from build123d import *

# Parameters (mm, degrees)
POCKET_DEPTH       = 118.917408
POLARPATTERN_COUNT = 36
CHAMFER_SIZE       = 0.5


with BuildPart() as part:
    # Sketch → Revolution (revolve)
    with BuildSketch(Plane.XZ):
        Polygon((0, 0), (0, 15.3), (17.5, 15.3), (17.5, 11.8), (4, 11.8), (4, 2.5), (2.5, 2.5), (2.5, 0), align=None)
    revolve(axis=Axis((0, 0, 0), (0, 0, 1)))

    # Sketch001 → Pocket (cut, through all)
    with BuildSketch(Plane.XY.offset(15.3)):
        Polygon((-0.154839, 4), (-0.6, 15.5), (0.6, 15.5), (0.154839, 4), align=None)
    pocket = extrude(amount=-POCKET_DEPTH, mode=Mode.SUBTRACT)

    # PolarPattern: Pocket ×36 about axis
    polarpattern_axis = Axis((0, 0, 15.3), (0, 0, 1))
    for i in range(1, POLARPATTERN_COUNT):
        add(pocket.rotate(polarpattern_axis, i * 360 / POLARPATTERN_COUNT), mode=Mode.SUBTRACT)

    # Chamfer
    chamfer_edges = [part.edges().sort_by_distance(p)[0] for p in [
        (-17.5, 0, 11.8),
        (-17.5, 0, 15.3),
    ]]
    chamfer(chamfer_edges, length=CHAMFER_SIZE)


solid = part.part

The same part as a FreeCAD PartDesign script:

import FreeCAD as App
import Part
import Sketcher


def edges_at(feature, points):
    """Names of the edges that pass closest to the given points."""
    edges = feature.Shape.Edges
    near = lambda p: min(range(len(edges)), key=lambda i: edges[i].distToShape(Part.Vertex(*p))[0])
    return sorted({f"Edge{near(p) + 1}" for p in points})

doc = App.newDocument("Part")
body = doc.addObject("PartDesign::Body", "Body")

sketch1 = body.newObject("Sketcher::SketchObject", "Sketch")
sketch1.AttachmentSupport = (doc.getObject("XZ_Plane"), [""])
sketch1.MapMode = "FlatFace"
sketch1.addGeometry(Part.LineSegment(App.Vector(0, 15.3, 0), App.Vector(0, 0, 0)), False)
sketch1.addGeometry(Part.LineSegment(App.Vector(0, 0, 0), App.Vector(2.5, 0, 0)), False)
sketch1.addGeometry(Part.LineSegment(App.Vector(2.5, 0, 0), App.Vector(2.5, 2.5, 0)), False)
sketch1.addGeometry(Part.LineSegment(App.Vector(2.5, 2.5, 0), App.Vector(4, 2.5, 0)), False)
sketch1.addGeometry(Part.LineSegment(App.Vector(4, 2.5, 0), App.Vector(4, 11.8, 0)), False)
sketch1.addGeometry(Part.LineSegment(App.Vector(4, 11.8, 0), App.Vector(17.5, 11.8, 0)), False)
sketch1.addGeometry(Part.LineSegment(App.Vector(17.5, 11.8, 0), App.Vector(17.5, 15.3, 0)), False)
sketch1.addGeometry(Part.LineSegment(App.Vector(17.5, 15.3, 0), App.Vector(0, 15.3, 0)), False)
sketch1.addConstraint(Sketcher.Constraint("Coincident", 0, 2, 1, 1))
sketch1.addConstraint(Sketcher.Constraint("Coincident", 1, 2, 2, 1))
sketch1.addConstraint(Sketcher.Constraint("Coincident", 2, 2, 3, 1))
sketch1.addConstraint(Sketcher.Constraint("Coincident", 3, 2, 4, 1))
sketch1.addConstraint(Sketcher.Constraint("Coincident", 4, 2, 5, 1))
sketch1.addConstraint(Sketcher.Constraint("Coincident", 5, 2, 6, 1))
sketch1.addConstraint(Sketcher.Constraint("Coincident", 6, 2, 7, 1))
sketch1.addConstraint(Sketcher.Constraint("Coincident", 7, 2, 0, 1))
sketch1.addConstraint(Sketcher.Constraint("Vertical", 0))
sketch1.addConstraint(Sketcher.Constraint("Horizontal", 1))
sketch1.addConstraint(Sketcher.Constraint("Vertical", 2))
sketch1.addConstraint(Sketcher.Constraint("Horizontal", 3))
sketch1.addConstraint(Sketcher.Constraint("Vertical", 4))
sketch1.addConstraint(Sketcher.Constraint("Horizontal", 5))
sketch1.addConstraint(Sketcher.Constraint("Vertical", 6))
sketch1.addConstraint(Sketcher.Constraint("Horizontal", 7))
sketch1.addConstraint(Sketcher.Constraint("Coincident", 0, 2, -1, 1))
sketch1.addConstraint(Sketcher.Constraint("Equal", 1, 2))
sketch1.addConstraint(Sketcher.Constraint("DistanceX", 1, 1, 1, 2, 2.5))
sketch1.addConstraint(Sketcher.Constraint("DistanceX", 3, 1, 3, 2, 1.5))
sketch1.addConstraint(Sketcher.Constraint("DistanceX", 5, 1, 5, 2, 13.5))
sketch1.addConstraint(Sketcher.Constraint("DistanceY", 0, 2, 0, 1, 15.3))
sketch1.addConstraint(Sketcher.Constraint("DistanceY", 4, 1, 4, 2, 9.3))
revolution = body.newObject("PartDesign::Revolution", "Revolution")
revolution.Profile = sketch1
revolution.ReferenceAxis = (sketch1, ["V_Axis"])
revolution.Angle = 360

sketch2 = body.newObject("Sketcher::SketchObject", "Sketch001")
sketch2.AttachmentSupport = (doc.getObject("XY_Plane"), [""])
sketch2.MapMode = "FlatFace"
sketch2.AttachmentOffset = App.Placement(App.Vector(0, 0, 15.3), App.Rotation())
sketch2.addGeometry(Part.LineSegment(App.Vector(-0.6, 15.5, 0), App.Vector(-0.15, 4, 0)), False)
sketch2.addGeometry(Part.LineSegment(App.Vector(-0.15, 4, 0), App.Vector(0.15, 4, 0)), False)
sketch2.addGeometry(Part.LineSegment(App.Vector(0.15, 4, 0), App.Vector(0.6, 15.5, 0)), False)
sketch2.addGeometry(Part.LineSegment(App.Vector(0.6, 15.5, 0), App.Vector(-0.6, 15.5, 0)), False)
sketch2.addConstraint(Sketcher.Constraint("Coincident", 0, 2, 1, 1))
sketch2.addConstraint(Sketcher.Constraint("Coincident", 1, 2, 2, 1))
sketch2.addConstraint(Sketcher.Constraint("Coincident", 2, 2, 3, 1))
sketch2.addConstraint(Sketcher.Constraint("Coincident", 3, 2, 0, 1))
sketch2.addConstraint(Sketcher.Constraint("Horizontal", 1))
sketch2.addConstraint(Sketcher.Constraint("Horizontal", 3))
sketch2.addConstraint(Sketcher.Constraint("Equal", 0, 2))
sketch2.addConstraint(Sketcher.Constraint("DistanceX", 3, 2, 3, 1, 1.2))
sketch2.addConstraint(Sketcher.Constraint("DistanceY", -1, 1, 0, 2, 4.0))
sketch2.addConstraint(Sketcher.Constraint("DistanceX", -1, 1, 2, 2, 0.6))
sketch2.addConstraint(Sketcher.Constraint("DistanceY", -1, 1, 2, 2, 15.5))
sketch2.addConstraint(Sketcher.Constraint("DistanceX", 1, 1, 1, 2, 0.309678))
pocket1 = body.newObject("PartDesign::Pocket", "Pocket")
pocket1.Profile = sketch2
pocket1.Type = "ThroughAll"
doc.recompute()

polarpattern = body.newObject("PartDesign::PolarPattern", "PolarPattern")
polarpattern.Originals = [pocket1]
polarpattern.Axis = (doc.getObject("Z_Axis"), [""])
polarpattern.Angle = 360
polarpattern.Occurrences = 36
body.Tip = polarpattern
doc.recompute()

chamfer = body.newObject("PartDesign::Chamfer", "Chamfer")
chamfer.Base = (polarpattern, edges_at(polarpattern, [(-17.5, 0, 11.8), (-17.5, 0, 15.3)]))
chamfer.Size = 0.5

doc.recompute()
